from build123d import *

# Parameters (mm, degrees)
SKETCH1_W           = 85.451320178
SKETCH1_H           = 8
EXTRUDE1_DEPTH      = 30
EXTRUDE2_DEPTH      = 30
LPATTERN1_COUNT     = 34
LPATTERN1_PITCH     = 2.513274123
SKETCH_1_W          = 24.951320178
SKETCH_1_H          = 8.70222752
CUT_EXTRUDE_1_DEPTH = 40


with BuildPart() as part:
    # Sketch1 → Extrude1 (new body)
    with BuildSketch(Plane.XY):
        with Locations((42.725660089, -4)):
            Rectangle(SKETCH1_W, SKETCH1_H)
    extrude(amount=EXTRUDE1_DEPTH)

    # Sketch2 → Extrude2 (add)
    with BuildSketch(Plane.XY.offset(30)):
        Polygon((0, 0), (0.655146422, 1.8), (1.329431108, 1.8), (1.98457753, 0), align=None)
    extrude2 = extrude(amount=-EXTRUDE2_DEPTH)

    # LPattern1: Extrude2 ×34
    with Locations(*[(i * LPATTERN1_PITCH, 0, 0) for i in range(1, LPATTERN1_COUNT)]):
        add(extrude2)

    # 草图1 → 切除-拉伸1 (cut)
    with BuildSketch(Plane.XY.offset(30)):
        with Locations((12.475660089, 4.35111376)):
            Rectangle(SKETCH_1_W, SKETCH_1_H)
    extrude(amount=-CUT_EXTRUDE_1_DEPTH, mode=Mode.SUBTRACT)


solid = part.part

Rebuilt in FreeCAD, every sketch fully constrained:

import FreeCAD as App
import Part
import Sketcher

V = App.Vector
Q = App.Units.Quantity

doc = App.newDocument("Part")
body = doc.addObject("PartDesign::Body", "Body")

sketch1 = doc.addObject("Sketcher::SketchObject", "Sketch")
body.addObject(sketch1)
sketch1.AttachmentSupport = (doc.XY_Plane, [""])
sketch1.MapMode = "FlatFace"
sketch1.addGeometry(Part.LineSegment(V(0, 0, 0), V(0, -8, 0)), False)
sketch1.addGeometry(Part.LineSegment(V(0, -8, 0), V(85, -8, 0)), False)
sketch1.addGeometry(Part.LineSegment(V(85, -8, 0), V(85, 0, 0)), False)
sketch1.addGeometry(Part.LineSegment(V(85, 0, 0), V(0, 0, 0)), False)
sketch1.addConstraint(Sketcher.Constraint("Coincident", 0, 2, 1, 1))
sketch1.addConstraint(Sketcher.Constraint("Coincident", 1, 2, 2, 1))
sketch1.addConstraint(Sketcher.Constraint("Coincident", 2, 2, 3, 1))
sketch1.addConstraint(Sketcher.Constraint("Coincident", 3, 2, 0, 1))
sketch1.addConstraint(Sketcher.Constraint("Vertical", 0))
sketch1.addConstraint(Sketcher.Constraint("Horizontal", 1))
sketch1.addConstraint(Sketcher.Constraint("Vertical", 2))
sketch1.addConstraint(Sketcher.Constraint("Horizontal", 3))
sketch1.addConstraint(Sketcher.Constraint("Coincident", 3, 2, -1, 1))
sketch1.addConstraint(Sketcher.Constraint("DistanceY", 0, 2, 0, 1, Q("8 mm")))
sketch1.addConstraint(Sketcher.Constraint("DistanceX", 1, 1, 1, 2, Q("85.45132 mm")))
pad1 = doc.addObject("PartDesign::Pad", "Pad")
body.addObject(pad1)
pad1.Profile = sketch1
pad1.Length = 30

sketch2 = doc.addObject("Sketcher::SketchObject", "Sketch001")
body.addObject(sketch2)
sketch2.AttachmentSupport = (doc.XY_Plane, [""])
sketch2.MapMode = "FlatFace"
sketch2.AttachmentOffset = App.Placement(V(0, 0, 30), App.Rotation())
sketch2.addGeometry(Part.LineSegment(V(0.7, 1.8, 0), V(0, 0, 0)), False)
sketch2.addGeometry(Part.LineSegment(V(0, 0, 0), V(2, 0, 0)), False)
sketch2.addGeometry(Part.LineSegment(V(2, 0, 0), V(1.3, 1.8, 0)), False)
sketch2.addGeometry(Part.LineSegment(V(1.3, 1.8, 0), V(0.7, 1.8, 0)), False)
sketch2.addConstraint(Sketcher.Constraint("Coincident", 0, 2, 1, 1))
sketch2.addConstraint(Sketcher.Constraint("Coincident", 1, 2, 2, 1))
sketch2.addConstraint(Sketcher.Constraint("Coincident", 2, 2, 3, 1))
sketch2.addConstraint(Sketcher.Constraint("Coincident", 3, 2, 0, 1))
sketch2.addConstraint(Sketcher.Constraint("Horizontal", 1))
sketch2.addConstraint(Sketcher.Constraint("Horizontal", 3))
sketch2.addConstraint(Sketcher.Constraint("Coincident", 0, 2, -1, 1))
sketch2.addConstraint(Sketcher.Constraint("Equal", 0, 2))
sketch2.addConstraint(Sketcher.Constraint("Angle", 0, Q("-110 deg")))
sketch2.addConstraint(Sketcher.Constraint("DistanceY", -1, 1, 2, 2, Q("1.8 mm")))
sketch2.addConstraint(Sketcher.Constraint("DistanceX", 1, 1, 1, 2, Q("1.984578 mm")))
pad2 = doc.addObject("PartDesign::Pad", "Pad001")
body.addObject(pad2)
pad2.Profile = sketch2
pad2.Length = 30
pad2.Reversed = True
doc.recompute()

linearpattern = doc.addObject("PartDesign::LinearPattern", "LinearPattern")
body.addObject(linearpattern)
linearpattern.Originals = [pad2]
linearpattern.Direction = (doc.X_Axis, [""])
linearpattern.Mode = "offset"
linearpattern.Offset = 2.513274
linearpattern.Occurrences = 34
body.Tip = linearpattern

sketch3 = doc.addObject("Sketcher::SketchObject", "Sketch002")
body.addObject(sketch3)
sketch3.AttachmentSupport = (doc.XY_Plane, [""])
sketch3.MapMode = "FlatFace"
sketch3.AttachmentOffset = App.Placement(V(0, 0, 30), App.Rotation())
sketch3.addGeometry(Part.LineSegment(V(0, 9, 0), V(0, 0, 0)), False)
sketch3.addGeometry(Part.LineSegment(V(0, 0, 0), V(25, 0, 0)), False)
sketch3.addGeometry(Part.LineSegment(V(25, 0, 0), V(25, 9, 0)), False)
sketch3.addGeometry(Part.LineSegment(V(25, 9, 0), V(0, 9, 0)), False)
sketch3.addConstraint(Sketcher.Constraint("Coincident", 0, 2, 1, 1))
sketch3.addConstraint(Sketcher.Constraint("Coincident", 1, 2, 2, 1))
sketch3.addConstraint(Sketcher.Constraint("Coincident", 2, 2, 3, 1))
sketch3.addConstraint(Sketcher.Constraint("Coincident", 3, 2, 0, 1))
sketch3.addConstraint(Sketcher.Constraint("Vertical", 0))
sketch3.addConstraint(Sketcher.Constraint("Horizontal", 1))
sketch3.addConstraint(Sketcher.Constraint("Vertical", 2))
sketch3.addConstraint(Sketcher.Constraint("Horizontal", 3))
sketch3.addConstraint(Sketcher.Constraint("Coincident", 0, 2, -1, 1))
sketch3.addConstraint(Sketcher.Constraint("DistanceX", 1, 1, 1, 2, Q("24.95132 mm")))
sketch3.addConstraint(Sketcher.Constraint("DistanceY", 0, 2, 0, 1, Q("8.702228 mm")))
pocket1 = doc.addObject("PartDesign::Pocket", "Pocket")
body.addObject(pocket1)
pocket1.Profile = sketch3
pocket1.Length = 40

doc.recompute()
